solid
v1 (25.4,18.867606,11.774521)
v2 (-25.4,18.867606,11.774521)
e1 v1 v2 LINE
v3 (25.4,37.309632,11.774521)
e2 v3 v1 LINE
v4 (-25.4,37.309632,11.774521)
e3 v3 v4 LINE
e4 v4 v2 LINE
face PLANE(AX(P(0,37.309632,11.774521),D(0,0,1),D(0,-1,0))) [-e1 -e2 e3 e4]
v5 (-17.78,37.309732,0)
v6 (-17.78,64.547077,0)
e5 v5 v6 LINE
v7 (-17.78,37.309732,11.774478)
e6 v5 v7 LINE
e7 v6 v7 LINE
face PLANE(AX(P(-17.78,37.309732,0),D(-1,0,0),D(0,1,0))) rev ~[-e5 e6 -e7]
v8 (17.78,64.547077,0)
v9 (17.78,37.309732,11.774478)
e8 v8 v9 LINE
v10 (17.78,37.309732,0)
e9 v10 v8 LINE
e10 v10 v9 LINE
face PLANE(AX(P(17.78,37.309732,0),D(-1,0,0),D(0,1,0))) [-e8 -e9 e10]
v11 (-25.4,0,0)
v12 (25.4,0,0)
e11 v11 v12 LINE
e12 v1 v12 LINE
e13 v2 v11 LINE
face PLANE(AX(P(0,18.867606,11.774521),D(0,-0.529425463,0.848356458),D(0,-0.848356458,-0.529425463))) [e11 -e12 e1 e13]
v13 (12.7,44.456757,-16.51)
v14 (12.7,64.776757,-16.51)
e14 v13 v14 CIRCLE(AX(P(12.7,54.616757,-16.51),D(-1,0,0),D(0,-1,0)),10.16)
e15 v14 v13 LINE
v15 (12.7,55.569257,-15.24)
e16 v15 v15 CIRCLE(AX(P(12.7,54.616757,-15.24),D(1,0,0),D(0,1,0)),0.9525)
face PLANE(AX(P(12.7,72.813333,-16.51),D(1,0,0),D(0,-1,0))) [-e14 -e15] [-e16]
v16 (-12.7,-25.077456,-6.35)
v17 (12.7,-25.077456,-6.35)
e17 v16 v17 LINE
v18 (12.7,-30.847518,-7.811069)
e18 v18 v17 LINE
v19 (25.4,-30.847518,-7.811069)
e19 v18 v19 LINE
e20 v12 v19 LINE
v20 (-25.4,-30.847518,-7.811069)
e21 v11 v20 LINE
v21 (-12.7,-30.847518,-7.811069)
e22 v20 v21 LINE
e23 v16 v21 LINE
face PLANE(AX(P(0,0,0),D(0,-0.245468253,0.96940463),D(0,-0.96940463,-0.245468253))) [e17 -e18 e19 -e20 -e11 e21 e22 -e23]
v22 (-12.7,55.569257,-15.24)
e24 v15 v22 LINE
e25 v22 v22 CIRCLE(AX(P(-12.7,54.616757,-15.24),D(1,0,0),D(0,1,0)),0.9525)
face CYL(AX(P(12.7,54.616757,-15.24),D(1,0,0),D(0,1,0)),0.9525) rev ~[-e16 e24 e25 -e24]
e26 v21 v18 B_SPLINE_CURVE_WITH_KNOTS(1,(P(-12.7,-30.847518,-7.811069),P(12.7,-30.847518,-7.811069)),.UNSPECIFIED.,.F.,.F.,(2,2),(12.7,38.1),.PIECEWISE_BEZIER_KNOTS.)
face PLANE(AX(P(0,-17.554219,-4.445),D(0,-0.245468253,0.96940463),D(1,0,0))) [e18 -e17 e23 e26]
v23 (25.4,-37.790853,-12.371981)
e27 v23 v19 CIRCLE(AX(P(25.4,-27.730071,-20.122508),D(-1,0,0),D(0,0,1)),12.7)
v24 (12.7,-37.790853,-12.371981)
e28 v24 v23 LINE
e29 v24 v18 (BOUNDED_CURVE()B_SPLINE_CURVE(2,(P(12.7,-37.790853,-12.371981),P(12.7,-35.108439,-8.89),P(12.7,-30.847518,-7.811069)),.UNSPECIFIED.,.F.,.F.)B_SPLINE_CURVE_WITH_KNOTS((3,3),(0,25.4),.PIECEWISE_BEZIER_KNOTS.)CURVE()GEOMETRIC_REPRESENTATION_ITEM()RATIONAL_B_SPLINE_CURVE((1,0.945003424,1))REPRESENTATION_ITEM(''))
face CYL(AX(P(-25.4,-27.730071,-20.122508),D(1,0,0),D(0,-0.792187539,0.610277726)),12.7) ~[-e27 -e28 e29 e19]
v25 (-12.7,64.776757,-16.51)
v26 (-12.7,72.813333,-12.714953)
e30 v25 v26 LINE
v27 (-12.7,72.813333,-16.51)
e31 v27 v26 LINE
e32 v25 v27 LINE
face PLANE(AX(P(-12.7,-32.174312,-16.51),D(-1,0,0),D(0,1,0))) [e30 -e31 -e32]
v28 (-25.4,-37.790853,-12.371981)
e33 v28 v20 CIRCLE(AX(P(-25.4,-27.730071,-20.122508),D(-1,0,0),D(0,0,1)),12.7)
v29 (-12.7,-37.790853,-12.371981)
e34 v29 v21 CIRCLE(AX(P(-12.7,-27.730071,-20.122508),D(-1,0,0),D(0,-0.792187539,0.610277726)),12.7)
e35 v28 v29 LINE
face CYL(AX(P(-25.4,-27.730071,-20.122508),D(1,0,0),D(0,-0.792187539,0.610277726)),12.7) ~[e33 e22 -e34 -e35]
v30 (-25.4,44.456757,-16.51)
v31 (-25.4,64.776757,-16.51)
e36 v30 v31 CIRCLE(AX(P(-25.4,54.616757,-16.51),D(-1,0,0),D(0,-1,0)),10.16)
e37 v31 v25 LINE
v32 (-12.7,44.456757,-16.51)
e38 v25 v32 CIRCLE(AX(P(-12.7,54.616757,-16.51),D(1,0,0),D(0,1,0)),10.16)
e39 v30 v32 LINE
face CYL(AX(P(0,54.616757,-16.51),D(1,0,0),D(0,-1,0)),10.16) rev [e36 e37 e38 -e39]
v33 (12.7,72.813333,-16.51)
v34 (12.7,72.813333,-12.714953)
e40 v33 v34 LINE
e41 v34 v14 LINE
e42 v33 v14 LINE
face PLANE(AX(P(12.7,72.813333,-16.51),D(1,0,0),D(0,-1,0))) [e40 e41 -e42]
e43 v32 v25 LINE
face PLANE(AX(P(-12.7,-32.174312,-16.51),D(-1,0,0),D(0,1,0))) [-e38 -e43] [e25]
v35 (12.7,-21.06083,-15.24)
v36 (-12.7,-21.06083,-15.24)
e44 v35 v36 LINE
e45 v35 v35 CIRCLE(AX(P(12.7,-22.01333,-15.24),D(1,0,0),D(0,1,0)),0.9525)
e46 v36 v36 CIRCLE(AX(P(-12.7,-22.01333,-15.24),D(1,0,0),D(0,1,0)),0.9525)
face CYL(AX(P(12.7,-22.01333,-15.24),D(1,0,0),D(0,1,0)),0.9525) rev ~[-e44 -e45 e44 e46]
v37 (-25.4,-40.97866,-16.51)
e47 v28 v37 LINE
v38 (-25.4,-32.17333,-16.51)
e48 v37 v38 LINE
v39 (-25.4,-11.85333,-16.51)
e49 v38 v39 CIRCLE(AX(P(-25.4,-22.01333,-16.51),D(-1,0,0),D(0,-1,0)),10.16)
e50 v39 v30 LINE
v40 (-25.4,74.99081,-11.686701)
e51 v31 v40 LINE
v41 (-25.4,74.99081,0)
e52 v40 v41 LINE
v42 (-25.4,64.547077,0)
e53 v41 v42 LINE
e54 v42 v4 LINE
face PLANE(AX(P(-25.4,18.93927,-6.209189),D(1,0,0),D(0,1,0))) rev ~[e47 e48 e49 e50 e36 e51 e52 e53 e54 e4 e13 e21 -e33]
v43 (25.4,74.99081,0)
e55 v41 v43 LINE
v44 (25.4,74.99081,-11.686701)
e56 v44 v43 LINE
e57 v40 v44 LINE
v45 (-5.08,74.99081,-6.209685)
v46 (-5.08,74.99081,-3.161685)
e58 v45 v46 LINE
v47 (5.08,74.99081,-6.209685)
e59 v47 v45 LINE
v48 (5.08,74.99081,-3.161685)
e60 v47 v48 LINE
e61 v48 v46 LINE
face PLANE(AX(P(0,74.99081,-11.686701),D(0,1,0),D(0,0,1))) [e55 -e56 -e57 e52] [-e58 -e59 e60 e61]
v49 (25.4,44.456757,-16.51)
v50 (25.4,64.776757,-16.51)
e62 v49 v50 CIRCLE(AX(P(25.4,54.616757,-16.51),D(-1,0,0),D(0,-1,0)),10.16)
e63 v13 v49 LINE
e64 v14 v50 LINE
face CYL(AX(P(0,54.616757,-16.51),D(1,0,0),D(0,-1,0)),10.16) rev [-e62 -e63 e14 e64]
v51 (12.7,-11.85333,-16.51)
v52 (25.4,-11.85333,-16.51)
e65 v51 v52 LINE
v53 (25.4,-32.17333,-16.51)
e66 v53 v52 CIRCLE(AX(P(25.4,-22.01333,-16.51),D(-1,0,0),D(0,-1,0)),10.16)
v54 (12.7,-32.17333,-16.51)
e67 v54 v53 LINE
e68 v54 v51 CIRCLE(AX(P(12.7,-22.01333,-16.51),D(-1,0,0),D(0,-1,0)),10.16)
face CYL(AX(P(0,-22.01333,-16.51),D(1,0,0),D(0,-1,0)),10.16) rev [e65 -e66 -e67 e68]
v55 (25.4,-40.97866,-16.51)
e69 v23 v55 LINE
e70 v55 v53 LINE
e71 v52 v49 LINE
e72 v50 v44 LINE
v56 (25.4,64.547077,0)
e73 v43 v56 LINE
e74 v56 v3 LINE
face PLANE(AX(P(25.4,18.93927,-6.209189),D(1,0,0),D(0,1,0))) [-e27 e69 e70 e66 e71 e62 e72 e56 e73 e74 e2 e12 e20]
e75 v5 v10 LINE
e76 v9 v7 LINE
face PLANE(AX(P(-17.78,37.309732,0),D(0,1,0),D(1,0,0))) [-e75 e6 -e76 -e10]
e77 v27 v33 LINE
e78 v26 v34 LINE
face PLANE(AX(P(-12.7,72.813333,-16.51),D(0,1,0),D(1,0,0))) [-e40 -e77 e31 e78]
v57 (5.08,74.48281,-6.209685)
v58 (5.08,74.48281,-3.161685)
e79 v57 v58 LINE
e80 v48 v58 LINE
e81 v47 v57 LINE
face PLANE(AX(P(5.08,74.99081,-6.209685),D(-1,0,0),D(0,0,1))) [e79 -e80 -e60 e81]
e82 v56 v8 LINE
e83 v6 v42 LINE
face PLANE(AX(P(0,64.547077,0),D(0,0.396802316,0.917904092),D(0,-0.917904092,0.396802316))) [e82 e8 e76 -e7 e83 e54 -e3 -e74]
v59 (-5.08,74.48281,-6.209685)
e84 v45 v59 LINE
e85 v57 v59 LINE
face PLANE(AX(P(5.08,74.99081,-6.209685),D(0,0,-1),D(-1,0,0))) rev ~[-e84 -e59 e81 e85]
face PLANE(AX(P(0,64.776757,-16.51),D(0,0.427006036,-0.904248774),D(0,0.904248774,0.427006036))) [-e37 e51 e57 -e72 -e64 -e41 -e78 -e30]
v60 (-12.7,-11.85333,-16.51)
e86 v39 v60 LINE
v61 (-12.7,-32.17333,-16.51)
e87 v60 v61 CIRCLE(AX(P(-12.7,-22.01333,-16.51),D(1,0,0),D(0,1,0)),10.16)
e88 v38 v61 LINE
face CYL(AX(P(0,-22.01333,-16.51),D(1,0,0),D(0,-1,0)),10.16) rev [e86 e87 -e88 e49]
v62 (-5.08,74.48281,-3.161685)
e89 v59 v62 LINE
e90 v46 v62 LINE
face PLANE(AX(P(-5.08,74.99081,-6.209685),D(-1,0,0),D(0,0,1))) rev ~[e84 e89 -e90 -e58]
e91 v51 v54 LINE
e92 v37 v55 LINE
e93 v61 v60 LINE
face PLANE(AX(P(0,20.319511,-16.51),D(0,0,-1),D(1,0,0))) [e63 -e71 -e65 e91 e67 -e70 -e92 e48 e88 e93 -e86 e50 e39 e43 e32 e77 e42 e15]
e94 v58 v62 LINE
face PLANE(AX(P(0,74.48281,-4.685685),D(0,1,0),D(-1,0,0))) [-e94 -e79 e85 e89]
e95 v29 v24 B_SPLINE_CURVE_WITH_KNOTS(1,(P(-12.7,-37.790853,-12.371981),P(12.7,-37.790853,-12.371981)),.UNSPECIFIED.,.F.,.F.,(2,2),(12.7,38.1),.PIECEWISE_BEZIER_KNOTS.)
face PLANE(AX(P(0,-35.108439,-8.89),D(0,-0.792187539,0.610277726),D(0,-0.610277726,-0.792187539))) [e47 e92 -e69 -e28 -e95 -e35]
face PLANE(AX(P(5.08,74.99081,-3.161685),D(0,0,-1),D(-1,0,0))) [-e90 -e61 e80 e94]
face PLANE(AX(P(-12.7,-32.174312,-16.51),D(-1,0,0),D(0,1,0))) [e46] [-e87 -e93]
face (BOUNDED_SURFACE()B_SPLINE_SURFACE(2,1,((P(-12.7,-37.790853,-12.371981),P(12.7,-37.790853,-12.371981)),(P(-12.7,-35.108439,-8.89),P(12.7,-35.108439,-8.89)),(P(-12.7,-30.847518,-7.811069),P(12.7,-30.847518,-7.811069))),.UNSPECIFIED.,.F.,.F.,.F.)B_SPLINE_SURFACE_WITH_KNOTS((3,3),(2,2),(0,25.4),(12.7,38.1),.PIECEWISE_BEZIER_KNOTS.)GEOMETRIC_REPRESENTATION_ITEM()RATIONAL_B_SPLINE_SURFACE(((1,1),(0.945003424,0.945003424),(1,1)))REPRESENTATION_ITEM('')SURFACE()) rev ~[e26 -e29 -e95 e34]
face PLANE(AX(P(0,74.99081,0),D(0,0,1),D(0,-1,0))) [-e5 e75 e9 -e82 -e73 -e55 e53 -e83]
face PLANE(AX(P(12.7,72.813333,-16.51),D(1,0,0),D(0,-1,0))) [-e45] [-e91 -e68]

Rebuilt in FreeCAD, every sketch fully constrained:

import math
import FreeCAD as App
import Part
import Sketcher
from FreeCAD import Vector
Q = App.Units.Quantity


def edges_at(feature, points):
    """Names of the edges that pass closest to the given points."""
    edges = feature.Shape.Edges
    near = lambda p: min(range(len(edges)), key=lambda i: edges[i].distToShape(Part.Vertex(*p))[0])
    return sorted({f"Edge{near(p) + 1}" for p in points})


def add_polygon(sketch, points):
    """Adds a closed chain of lines whose ends are joined by coincident constraints."""
    first, n = sketch.GeometryCount, len(points)
    for a, b in zip(points, points[1:] + points[:1]):
        sketch.addGeometry(Part.LineSegment(App.Vector(*a, 0), App.Vector(*b, 0)), False)
    for i in range(n):
        sketch.addConstraint(Sketcher.Constraint("Coincident", first + i, 2, first + (i + 1) % n, 1))

doc = App.newDocument("Part")
body = doc.addObject("PartDesign::Body", "Body")

# Sketch on YZ plane
sketch1 = doc.addObject("Sketcher::SketchObject", "Sketch")
body.addObject(sketch1)
sketch1.AttachmentSupport = (doc.YZ_Plane, [""])
sketch1.MapMode = "FlatFace"
sketch1.addGeometry([
    Part.LineSegment(Vector(19, 12, 0), Vector(0, 0, 0)),  # 0
    Part.LineSegment(Vector(0, 0, 0), Vector(-35, -9, 0)),  # 1
    Part.LineSegment(Vector(-35, -9, 0), Vector(-41, -17, 0)),  # 2
    Part.LineSegment(Vector(-41, -17, 0), Vector(-32, -17, 0)),  # 3
    Part.ArcOfCircle(Part.Circle(Vector(-22, -17, 0), Vector(0, 0, 1), 10), math.radians(0), math.radians(180)),  # 4
    Part.LineSegment(Vector(-12, -17, 0), Vector(44, -17, 0)),  # 5
    Part.ArcOfCircle(Part.Circle(Vector(55, -17, 0), Vector(0, 0, 1), 10), math.radians(0), math.radians(180)),  # 6
    Part.LineSegment(Vector(65, -17, 0), Vector(75, -12, 0)),  # 7
    Part.LineSegment(Vector(75, -12, 0), Vector(75, 0, 0)),  # 8
    Part.LineSegment(Vector(75, 0, 0), Vector(65, 0, 0)),  # 9
    Part.LineSegment(Vector(65, 0, 0), Vector(37, 12, 0)),  # 10
    Part.LineSegment(Vector(37, 12, 0), Vector(19, 12, 0)),  # 11
], False)
sketch1.addConstraint([
    Sketcher.Constraint("Coincident", 0, 2, 1, 1),
    Sketcher.Constraint("Coincident", 1, 2, 2, 1),
    Sketcher.Constraint("Coincident", 2, 2, 3, 1),
    Sketcher.Constraint("Coincident", 3, 2, 4, 2),
    Sketcher.Constraint("Coincident", 4, 1, 5, 1),
    Sketcher.Constraint("Coincident", 5, 2, 6, 2),
    Sketcher.Constraint("Coincident", 6, 1, 7, 1),
    Sketcher.Constraint("Coincident", 7, 2, 8, 1),
    Sketcher.Constraint("Coincident", 8, 2, 9, 1),
    Sketcher.Constraint("Coincident", 9, 2, 10, 1),
    Sketcher.Constraint("Coincident", 10, 2, 11, 1),
    Sketcher.Constraint("Coincident", 11, 2, 0, 1),
    Sketcher.Constraint("Horizontal", 3),
    Sketcher.Constraint("Horizontal", 5),
    Sketcher.Constraint("Vertical", 8),
    Sketcher.Constraint("Horizontal", 9),
    Sketcher.Constraint("Horizontal", 11),
    Sketcher.Constraint("Coincident", 0, 2, -1, 1),
    Sketcher.Constraint("Equal", 4, 6),
    Sketcher.Constraint("PointOnObject", 8, 2, -1),
    Sketcher.Constraint("Horizontal", 4, 3, 6, 3),
    Sketcher.Constraint("Horizontal", 6, 3, 2, 2),
    Sketcher.Constraint("Horizontal", 3, 2, 4, 1),
    Sketcher.Constraint("Horizontal", 5, 2, 6, 1),
    Sketcher.Constraint("Radius", 4, Q("0.4 in")),
    Sketcher.Constraint("DistanceY", 4, 3, 1, 2, Q("0.3 in")),
    Sketcher.Constraint("DistanceY", 4, 3, -1, 1, Q("0.65 in")),
    Sketcher.Constraint("DistanceY", 8, 1, 8, 2, 11.686701),
    Sketcher.Constraint("DistanceX", 3, 1, 3, 2, 8.805331),
    Sketcher.Constraint("Distance", 10, 29.67352),
    Sketcher.Constraint("DistanceX", 5, 1, 5, 2, 56.310086),
    Sketcher.Constraint("DistanceX", 9, 2, 9, 1, 10.443733),
    Sketcher.Constraint("DistanceX", 11, 2, 11, 1, 18.442025),
    Sketcher.Constraint("DistanceX", 4, 3, -1, 1, 22.01333),
    Sketcher.Constraint("DistanceX", 1, 2, -1, 1, 35.108439),
    Sketcher.Constraint("DistanceX", -1, 1, 7, 2, 74.99081),
    Sketcher.Constraint("DistanceX", -1, 1, 10, 2, 37.309632),
])
pad1 = doc.addObject("PartDesign::Pad", "Pad")
body.addObject(pad1)
pad1.Profile = sketch1
pad1.Length = Q("2 in")
pad1.Midplane = True

# Sketch on XY plane
sketch2 = doc.addObject("Sketcher::SketchObject", "Sketch001")
body.addObject(sketch2)
sketch2.AttachmentSupport = (doc.XY_Plane, [""])
sketch2.MapMode = "FlatFace"
add_polygon(sketch2, [(-18, 65), (-18, 37), (18, 37), (18, 65)])  # lines 0-3
sketch2.addConstraint([
    Sketcher.Constraint("Vertical", 0),
    Sketcher.Constraint("Horizontal", 1),
    Sketcher.Constraint("Vertical", 2),
    Sketcher.Constraint("Horizontal", 3),
    Sketcher.Constraint("DistanceX", 1, 1, 1, 2, Q("1.4 in")),
    Sketcher.Constraint("DistanceX", 0, 2, -1, 1, Q("0.7 in")),
    Sketcher.Constraint("DistanceY", 0, 2, 0, 1, 27.237345),
    Sketcher.Constraint("DistanceY", -1, 1, 0, 2, 37.309732),
])
pocket1 = doc.addObject("PartDesign::Pocket", "Pocket")
body.addObject(pocket1)
pocket1.Profile = sketch2
pocket1.Type = "ThroughAll"
pocket1.Reversed = True

# Sketch on XY plane
sketch3 = doc.addObject("Sketcher::SketchObject", "Sketch002")
body.addObject(sketch3)
sketch3.AttachmentSupport = (doc.XY_Plane, [""])
sketch3.MapMode = "FlatFace"
sketch3.AttachmentOffset = App.Placement(Vector(0, 0, -0.65 * 25.4), App.Rotation())
add_polygon(sketch3, [(-13, 73), (13, 73), (13, -32), (-13, -32)])  # lines 0-3
sketch3.addConstraint([
    Sketcher.Constraint("Horizontal", 0),
    Sketcher.Constraint("Vertical", 1),
    Sketcher.Constraint("Horizontal", 2),
    Sketcher.Constraint("Vertical", 3),
    Sketcher.Constraint("DistanceX", 0, 1, 0, 2, Q("1 in")),
    Sketcher.Constraint("DistanceX", -1, 1, 0, 2, Q("0.5 in")),
    Sketcher.Constraint("DistanceY", 1, 2, 1, 1, 104.987645),
    Sketcher.Constraint("DistanceY", 1, 2, -1, 1, 32.174312),
])
pad2 = doc.addObject("PartDesign::Pad", "Pad001")
body.addObject(pad2)
pad2.Profile = sketch3
pad2.Length = Q("0.4 in")

# Sketch on an angled plane
sketch4 = doc.addObject("Sketcher::SketchObject", "Sketch003")
body.addObject(sketch4)
sketch4.Placement = App.Placement(Vector(0, 0, 0), App.Rotation(Vector(1, 0, 0), Vector(0, 0.96940463, 0.245468253), Vector(0, -0.245468253, 0.96940463), "ZXY"))
add_polygon(sketch4, [(-25, 0), (-25, -36), (25, -36), (25, 0)])  # lines 0-3
sketch4.addConstraint([
    Sketcher.Constraint("Vertical", 0),
    Sketcher.Constraint("Horizontal", 1),
    Sketcher.Constraint("Vertical", 2),
    Sketcher.Constraint("Horizontal", 3),
    Sketcher.Constraint("Symmetric", 2, 2, 3, 2, -1, 1),
    Sketcher.Constraint("DistanceX", 1, 1, 1, 2, Q("2 in")),
    Sketcher.Constraint("DistanceY", 0, 2, 0, 1, 36.216496),
])
pocket2 = doc.addObject("PartDesign::Pocket", "Pocket001")
body.addObject(pocket2)
pocket2.Profile = sketch4
pocket2.Type = "ThroughAll"
pocket2.Reversed = True
doc.recompute()

fillet = doc.addObject("PartDesign::Fillet", "Fillet")
body.addObject(fillet)
fillet.Base = (pocket2, edges_at(pocket2, [(0, -35.108, -8.89)]))
fillet.Radius = Q("0.5 in")

# Sketch on XZ plane
sketch5 = doc.addObject("Sketcher::SketchObject", "Sketch004")
body.addObject(sketch5)
sketch5.AttachmentSupport = (doc.XZ_Plane, [""])
sketch5.MapMode = "FlatFace"
sketch5.AttachmentOffset = App.Placement(Vector(0, 0, -74.99081), App.Rotation())
add_polygon(sketch5, [(5.1, -3.2), (5.1, -6.2), (-5.1, -6.2), (-5.1, -3.2)])  # lines 0-3
sketch5.addConstraint([
    Sketcher.Constraint("Vertical", 0),
    Sketcher.Constraint("Horizontal", 1),
    Sketcher.Constraint("Vertical", 2),
    Sketcher.Constraint("Horizontal", 3),
    Sketcher.Constraint("DistanceX", 1, 2, 1, 1, Q("0.4 in")),
    Sketcher.Constraint("DistanceY", 0, 2, 0, 1, Q("0.12 in")),
    Sketcher.Constraint("DistanceX", -1, 1, 0, 2, Q("0.2 in")),
    Sketcher.Constraint("DistanceY", 0, 2, -1, 1, 6.209685),
])
pocket3 = doc.addObject("PartDesign::Pocket", "Pocket002")
body.addObject(pocket3)
pocket3.Profile = sketch5
pocket3.Length = Q("0.02 in")
pocket3.Reversed = True

# Sketch on YZ plane
sketch6 = doc.addObject("Sketcher::SketchObject", "Sketch005")
body.addObject(sketch6)
sketch6.AttachmentSupport = (doc.YZ_Plane, [""])
sketch6.MapMode = "FlatFace"
sketch6.AttachmentOffset = App.Placement(Vector(0, 0, 0.5 * 25.4), App.Rotation())
sketch6.addGeometry(Part.Circle(Vector(-22, -15.2, 0), Vector(0, 0, 1), 1), False)
sketch6.addConstraint([
    Sketcher.Constraint("Diameter", 0, Q("0.075 in")),
    Sketcher.Constraint("DistanceY", 0, 3, -1, 1, Q("0.6 in")),
    Sketcher.Constraint("DistanceX", 0, 3, -1, 1, 22.01333),
])
pocket4 = doc.addObject("PartDesign::Pocket", "Pocket003")
body.addObject(pocket4)
pocket4.Profile = sketch6
pocket4.Type = "ThroughAll"

# Sketch on YZ plane
sketch7 = doc.addObject("Sketcher::SketchObject", "Sketch006")
body.addObject(sketch7)
sketch7.AttachmentSupport = (doc.YZ_Plane, [""])
sketch7.MapMode = "FlatFace"
sketch7.AttachmentOffset = App.Placement(Vector(0, 0, 0.5 * 25.4), App.Rotation())
sketch7.addGeometry(Part.Circle(Vector(54.6, -15.2, 0), Vector(0, 0, 1), 1), False)
sketch7.addConstraint([
    Sketcher.Constraint("Diameter", 0, Q("0.075 in")),
    Sketcher.Constraint("DistanceY", 0, 3, -1, 1, Q("0.6 in")),
    Sketcher.Constraint("DistanceX", -1, 1, 0, 3, 54.616757),
])
pocket5 = doc.addObject("PartDesign::Pocket", "Pocket004")
body.addObject(pocket5)
pocket5.Profile = sketch7
pocket5.Type = "ThroughAll"

doc.recompute()
